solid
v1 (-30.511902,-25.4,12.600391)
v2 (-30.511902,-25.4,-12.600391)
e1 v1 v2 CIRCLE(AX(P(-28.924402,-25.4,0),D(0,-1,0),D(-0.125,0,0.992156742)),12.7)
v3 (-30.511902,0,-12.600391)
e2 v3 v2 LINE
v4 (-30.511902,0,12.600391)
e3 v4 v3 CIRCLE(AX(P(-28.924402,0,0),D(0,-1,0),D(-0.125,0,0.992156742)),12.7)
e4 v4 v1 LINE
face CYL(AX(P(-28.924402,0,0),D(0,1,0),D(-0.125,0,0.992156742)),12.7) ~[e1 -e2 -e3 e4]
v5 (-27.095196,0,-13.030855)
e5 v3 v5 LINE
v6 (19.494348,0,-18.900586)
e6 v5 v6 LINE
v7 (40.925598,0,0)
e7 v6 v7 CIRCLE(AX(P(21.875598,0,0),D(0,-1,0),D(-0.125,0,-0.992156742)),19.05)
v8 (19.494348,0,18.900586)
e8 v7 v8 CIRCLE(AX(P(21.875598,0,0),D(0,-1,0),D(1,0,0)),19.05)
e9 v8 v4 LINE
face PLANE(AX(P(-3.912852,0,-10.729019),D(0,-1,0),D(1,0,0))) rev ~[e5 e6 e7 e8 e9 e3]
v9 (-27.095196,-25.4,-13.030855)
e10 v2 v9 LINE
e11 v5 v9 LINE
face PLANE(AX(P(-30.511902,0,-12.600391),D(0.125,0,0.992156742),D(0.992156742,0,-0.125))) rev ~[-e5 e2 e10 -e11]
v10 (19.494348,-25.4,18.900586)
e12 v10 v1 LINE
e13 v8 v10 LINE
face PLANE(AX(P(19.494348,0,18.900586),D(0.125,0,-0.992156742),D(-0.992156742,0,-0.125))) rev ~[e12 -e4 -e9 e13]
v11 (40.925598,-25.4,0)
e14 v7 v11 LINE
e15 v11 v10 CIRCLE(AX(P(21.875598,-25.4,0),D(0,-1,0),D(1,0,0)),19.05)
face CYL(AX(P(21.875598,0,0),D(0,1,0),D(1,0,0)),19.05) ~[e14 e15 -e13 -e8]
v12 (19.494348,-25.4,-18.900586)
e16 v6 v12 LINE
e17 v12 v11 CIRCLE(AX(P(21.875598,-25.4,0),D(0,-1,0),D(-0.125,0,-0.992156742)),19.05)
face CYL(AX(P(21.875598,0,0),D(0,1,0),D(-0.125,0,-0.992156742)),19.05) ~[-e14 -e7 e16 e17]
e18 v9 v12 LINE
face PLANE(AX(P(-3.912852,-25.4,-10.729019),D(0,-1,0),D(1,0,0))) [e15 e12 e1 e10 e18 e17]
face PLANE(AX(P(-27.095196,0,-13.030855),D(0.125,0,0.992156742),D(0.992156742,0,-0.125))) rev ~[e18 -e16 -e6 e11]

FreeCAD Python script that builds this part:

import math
import FreeCAD as App
import Part
import Sketcher
Q = App.Units.Quantity

doc = App.newDocument("Part")
body = doc.addObject("PartDesign::Body", "Body")

# Sketch on XZ plane
sketch1 = body.newObject("Sketcher::SketchObject", "Sketch")
sketch1.AttachmentSupport = (doc.getObject("XZ_Plane"), [""])
sketch1.MapMode = "FlatFace"
sketch1.addGeometry([
    Part.LineSegment(App.Vector(-27.1, -13, 0), App.Vector(19.5, -18.9, 0)),  # 0
    Part.ArcOfCircle(Part.Circle(App.Vector(21.9, 0, 0), App.Vector(0, 0, 1), 19.1), math.radians(-97), math.radians(0)),  # 1
    Part.ArcOfCircle(Part.Circle(App.Vector(21.9, 0, 0), App.Vector(0, 0, 1), 19.1), math.radians(0), math.radians(97)),  # 2
    Part.LineSegment(App.Vector(19.5, 18.9, 0), App.Vector(-30.5, 12.6, 0)),  # 3
    Part.ArcOfCircle(Part.Circle(App.Vector(-28.9, 0, 0), App.Vector(0, 0, 1), 12.7), math.radians(97), math.radians(263)),  # 4
    Part.LineSegment(App.Vector(-30.5, -12.6, 0), App.Vector(-27.1, -13, 0)),  # 5
], False)
sketch1.addConstraint([
    Sketcher.Constraint("Tangent", 0, 2, 1, 1),
    Sketcher.Constraint("Tangent", 1, 2, 2, 1),
    Sketcher.Constraint("Tangent", 2, 2, 3, 1),
    Sketcher.Constraint("Tangent", 3, 2, 4, 1),
    Sketcher.Constraint("Tangent", 4, 2, 5, 1),
    Sketcher.Constraint("Coincident", 5, 2, 0, 1),
    Sketcher.Constraint("Equal", 1, 2),
    Sketcher.Constraint("Symmetric", 0, 2, 2, 2, -1),
    Sketcher.Constraint("PointOnObject", 4, 3, -1),
    Sketcher.Constraint("PointOnObject", 1, 2, -1),
    Sketcher.Constraint("Radius", 4, Q("0.5 in")),
    Sketcher.Constraint("Radius", 1, Q("0.75 in")),
    Sketcher.Constraint("DistanceX", 4, 3, 1, 3, Q("2 in")),
    Sketcher.Constraint("DistanceX", -1, 1, 1, 3, 21.875598),
    Sketcher.Constraint("DistanceY", 0, 2, 5, 2, 5.869731),
])
pad1 = body.newObject("PartDesign::Pad", "Pad")
pad1.Profile = sketch1
pad1.Length = Q("1 in")

doc.recompute()
